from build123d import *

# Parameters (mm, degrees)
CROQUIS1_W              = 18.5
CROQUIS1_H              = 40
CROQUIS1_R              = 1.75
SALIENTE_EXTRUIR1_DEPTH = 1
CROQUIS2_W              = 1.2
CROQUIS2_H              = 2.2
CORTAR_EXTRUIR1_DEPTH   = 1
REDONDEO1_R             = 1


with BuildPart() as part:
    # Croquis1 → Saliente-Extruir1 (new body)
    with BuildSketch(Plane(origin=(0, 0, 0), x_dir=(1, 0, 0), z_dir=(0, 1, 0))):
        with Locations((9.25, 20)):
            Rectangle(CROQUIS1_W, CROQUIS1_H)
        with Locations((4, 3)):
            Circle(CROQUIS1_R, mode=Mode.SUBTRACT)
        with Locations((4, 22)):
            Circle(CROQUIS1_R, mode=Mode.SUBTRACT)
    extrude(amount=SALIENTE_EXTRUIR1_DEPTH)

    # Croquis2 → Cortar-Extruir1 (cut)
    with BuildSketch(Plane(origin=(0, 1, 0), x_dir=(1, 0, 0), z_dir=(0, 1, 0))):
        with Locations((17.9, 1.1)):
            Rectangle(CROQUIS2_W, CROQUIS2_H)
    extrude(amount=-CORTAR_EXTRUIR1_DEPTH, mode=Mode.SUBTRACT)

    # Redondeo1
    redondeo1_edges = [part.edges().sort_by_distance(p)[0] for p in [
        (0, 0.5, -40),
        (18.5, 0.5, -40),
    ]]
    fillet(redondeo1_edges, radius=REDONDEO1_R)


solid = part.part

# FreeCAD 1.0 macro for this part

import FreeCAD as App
import Part
import Sketcher

V = App.Vector
Q = App.Units.Quantity


def edges_at(feature, points):
    """Names of the edges that pass closest to the given points."""
    edges = feature.Shape.Edges
    near = lambda p: min(range(len(edges)), key=lambda i: edges[i].distToShape(Part.Vertex(*p))[0])
    return sorted({f"Edge{near(p) + 1}" for p in points})

doc = App.newDocument("Part")
params = doc.addObject("Spreadsheet::Sheet", "Params")
for row, (alias, value) in enumerate([
    ("sketch1_diameter", "3.5 mm"),
    ("sketch1_height", "40 mm"),
    ("sketch1_width", "18.5 mm"),
    ("pad1_length", "1 mm"),
    ("sketch2_width", "1.2 mm"),
    ("sketch2_height", "2.2 mm"),
    ("pocket1_length", "1 mm"),
    ("fillet_radius", "1 mm"),
], start=1):
    params.set(f"A{row}", alias)
    params.set(f"B{row}", "=" + value)
    params.setAlias(f"B{row}", alias)

body = doc.addObject("PartDesign::Body", "Body")

# Sketch on XZ plane
sketch1 = doc.addObject("Sketcher::SketchObject", "Sketch")
body.addObject(sketch1)
sketch1.AttachmentSupport = (doc.XZ_Plane, [""])
sketch1.MapMode = "FlatFace"
sketch1.addGeometry(Part.LineSegment(V(0, -40, 0), V(0, 0, 0)), False)
sketch1.addGeometry(Part.LineSegment(V(0, 0, 0), V(18.5, 0, 0)), False)
sketch1.addGeometry(Part.LineSegment(V(18.5, 0, 0), V(18.5, -40, 0)), False)
sketch1.addGeometry(Part.LineSegment(V(18.5, -40, 0), V(0, -40, 0)), False)
sketch1.addGeometry(Part.Circle(V(4, -3, 0), V(0, 0, 1), 1.75), False)
sketch1.addGeometry(Part.Circle(V(4, -22, 0), V(0, 0, 1), 1.75), False)
sketch1.addConstraint(Sketcher.Constraint("Coincident", 0, 2, 1, 1))
sketch1.addConstraint(Sketcher.Constraint("Coincident", 1, 2, 2, 1))
sketch1.addConstraint(Sketcher.Constraint("Coincident", 2, 2, 3, 1))
sketch1.addConstraint(Sketcher.Constraint("Coincident", 3, 2, 0, 1))
sketch1.addConstraint(Sketcher.Constraint("Vertical", 0))
sketch1.addConstraint(Sketcher.Constraint("Horizontal", 1))
sketch1.addConstraint(Sketcher.Constraint("Vertical", 2))
sketch1.addConstraint(Sketcher.Constraint("Horizontal", 3))
sketch1.addConstraint(Sketcher.Constraint("Coincident", 0, 2, -1, 1))
sketch1.addConstraint(Sketcher.Constraint("Equal", 4, 5))
sketch1.addConstraint(Sketcher.Constraint("Vertical", 4, 3, 5, 3))
sketch1.addConstraint(Sketcher.Constraint("Diameter", 4, Q("3.5 mm")))
sketch1.addConstraint(Sketcher.Constraint("DistanceY", 0, 1, 0, 2, Q("40 mm")))
sketch1.addConstraint(Sketcher.Constraint("DistanceX", 1, 1, 1, 2, Q("18.5 mm")))
sketch1.addConstraint(Sketcher.Constraint("DistanceX", -1, 1, 4, 3, Q("4 mm")))
sketch1.addConstraint(Sketcher.Constraint("DistanceY", 4, 3, -1, 1, Q("3 mm")))
sketch1.addConstraint(Sketcher.Constraint("DistanceY", 5, 3, -1, 1, Q("22 mm")))
sketch1.setExpression("Constraints[11]", "Params.sketch1_diameter")
sketch1.setExpression("Constraints[12]", "Params.sketch1_height")
sketch1.setExpression("Constraints[13]", "Params.sketch1_width")
pad1 = doc.addObject("PartDesign::Pad", "Pad")
body.addObject(pad1)
pad1.Profile = sketch1
pad1.setExpression("Length", "Params.pad1_length")
pad1.Reversed = True

# Sketch on XZ plane
sketch2 = doc.addObject("Sketcher::SketchObject", "Sketch001")
body.addObject(sketch2)
sketch2.AttachmentSupport = (doc.XZ_Plane, [""])
sketch2.MapMode = "FlatFace"
sketch2.AttachmentOffset = App.Placement(V(0, 0, -1), App.Rotation())
sketch2.addGeometry(Part.LineSegment(V(17.3, -2.2, 0), V(17.3, 0, 0)), False)
sketch2.addGeometry(Part.LineSegment(V(17.3, 0, 0), V(18.5, 0, 0)), False)
sketch2.addGeometry(Part.LineSegment(V(18.5, 0, 0), V(18.5, -2.2, 0)), False)
sketch2.addGeometry(Part.LineSegment(V(18.5, -2.2, 0), V(17.3, -2.2, 0)), False)
sketch2.addConstraint(Sketcher.Constraint("Coincident", 0, 2, 1, 1))
sketch2.addConstraint(Sketcher.Constraint("Coincident", 1, 2, 2, 1))
sketch2.addConstraint(Sketcher.Constraint("Coincident", 2, 2, 3, 1))
sketch2.addConstraint(Sketcher.Constraint("Coincident", 3, 2, 0, 1))
sketch2.addConstraint(Sketcher.Constraint("Vertical", 0))
sketch2.addConstraint(Sketcher.Constraint("Horizontal", 1))
sketch2.addConstraint(Sketcher.Constraint("Vertical", 2))
sketch2.addConstraint(Sketcher.Constraint("Horizontal", 3))
sketch2.addConstraint(Sketcher.Constraint("PointOnObject", 0, 2, -1))
sketch2.addConstraint(Sketcher.Constraint("DistanceX", 1, 1, 1, 2, Q("1.2 mm")))
sketch2.addConstraint(Sketcher.Constraint("DistanceY", 0, 1, 0, 2, Q("2.2 mm")))
sketch2.addConstraint(Sketcher.Constraint("DistanceX", -1, 1, 0, 2, Q("17.3 mm")))
sketch2.setExpression("Constraints[9]", "Params.sketch2_width")
sketch2.setExpression("Constraints[10]", "Params.sketch2_height")
pocket1 = doc.addObject("PartDesign::Pocket", "Pocket")
body.addObject(pocket1)
pocket1.Profile = sketch2
pocket1.setExpression("Length", "Params.pocket1_length")
pocket1.Reversed = True
doc.recompute()

fillet = doc.addObject("PartDesign::Fillet", "Fillet")
body.addObject(fillet)
fillet.Base = (pocket1, edges_at(pocket1, [(0, 0.5, -40), (18.5, 0.5, -40)]))
fillet.setExpression("Radius", "Params.fillet_radius")

doc.recompute()
